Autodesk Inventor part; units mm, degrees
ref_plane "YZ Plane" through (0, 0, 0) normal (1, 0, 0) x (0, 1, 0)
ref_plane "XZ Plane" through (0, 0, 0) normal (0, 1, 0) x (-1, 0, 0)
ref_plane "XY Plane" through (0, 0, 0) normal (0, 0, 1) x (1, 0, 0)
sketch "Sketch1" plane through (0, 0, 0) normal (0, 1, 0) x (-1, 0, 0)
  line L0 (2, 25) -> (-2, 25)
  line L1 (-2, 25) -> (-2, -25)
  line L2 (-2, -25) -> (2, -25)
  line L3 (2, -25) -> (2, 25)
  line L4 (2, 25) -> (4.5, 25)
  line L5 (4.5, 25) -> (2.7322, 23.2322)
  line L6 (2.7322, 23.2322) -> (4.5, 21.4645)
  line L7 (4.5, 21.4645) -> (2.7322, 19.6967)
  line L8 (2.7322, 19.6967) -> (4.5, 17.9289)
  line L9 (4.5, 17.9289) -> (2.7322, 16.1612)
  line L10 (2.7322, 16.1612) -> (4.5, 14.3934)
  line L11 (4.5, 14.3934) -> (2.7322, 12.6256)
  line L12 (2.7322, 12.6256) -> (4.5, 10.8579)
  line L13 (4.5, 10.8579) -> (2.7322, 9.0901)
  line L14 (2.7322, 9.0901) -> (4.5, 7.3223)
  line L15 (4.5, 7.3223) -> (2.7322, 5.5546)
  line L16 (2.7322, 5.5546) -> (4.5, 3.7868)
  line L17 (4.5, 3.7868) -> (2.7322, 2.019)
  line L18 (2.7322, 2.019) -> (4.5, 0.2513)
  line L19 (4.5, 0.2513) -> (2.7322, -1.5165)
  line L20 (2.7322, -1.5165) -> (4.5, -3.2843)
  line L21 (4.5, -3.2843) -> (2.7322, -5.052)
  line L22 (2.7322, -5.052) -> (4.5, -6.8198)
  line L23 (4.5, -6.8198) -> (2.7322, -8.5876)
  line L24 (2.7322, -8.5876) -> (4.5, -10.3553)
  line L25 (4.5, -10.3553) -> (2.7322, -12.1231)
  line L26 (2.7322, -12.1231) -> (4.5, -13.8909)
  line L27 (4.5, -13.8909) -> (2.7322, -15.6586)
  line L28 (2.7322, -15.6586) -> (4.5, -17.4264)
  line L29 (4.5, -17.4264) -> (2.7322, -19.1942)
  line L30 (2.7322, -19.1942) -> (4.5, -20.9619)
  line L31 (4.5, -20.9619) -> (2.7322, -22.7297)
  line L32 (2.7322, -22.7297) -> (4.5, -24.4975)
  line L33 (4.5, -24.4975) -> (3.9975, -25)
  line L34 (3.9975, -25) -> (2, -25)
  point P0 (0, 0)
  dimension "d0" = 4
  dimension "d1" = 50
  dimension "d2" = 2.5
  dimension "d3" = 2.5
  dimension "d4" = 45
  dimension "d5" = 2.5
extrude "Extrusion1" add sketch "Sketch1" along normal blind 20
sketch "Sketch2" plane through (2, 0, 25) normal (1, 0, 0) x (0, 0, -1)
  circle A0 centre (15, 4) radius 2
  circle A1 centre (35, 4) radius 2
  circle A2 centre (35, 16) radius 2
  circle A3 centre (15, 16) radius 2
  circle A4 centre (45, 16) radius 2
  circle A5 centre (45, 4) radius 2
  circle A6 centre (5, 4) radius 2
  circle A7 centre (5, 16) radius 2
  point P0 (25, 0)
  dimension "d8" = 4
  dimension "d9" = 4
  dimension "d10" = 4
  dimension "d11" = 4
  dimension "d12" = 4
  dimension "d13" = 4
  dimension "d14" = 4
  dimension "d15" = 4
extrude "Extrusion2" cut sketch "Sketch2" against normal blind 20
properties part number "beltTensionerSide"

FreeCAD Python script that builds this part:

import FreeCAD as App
import Part
import Sketcher


def add_polygon(sketch, points):
    """Adds a closed chain of lines whose ends are joined by coincident constraints."""
    first, n = sketch.GeometryCount, len(points)
    for a, b in zip(points, points[1:] + points[:1]):
        sketch.addGeometry(Part.LineSegment(App.Vector(*a, 0), App.Vector(*b, 0)), False)
    for i in range(n):
        sketch.addConstraint(Sketcher.Constraint("Coincident", first + i, 2, first + (i + 1) % n, 1))

doc = App.newDocument("Part")
body = doc.addObject("PartDesign::Body", "Body")

sketch1 = body.newObject("Sketcher::SketchObject", "Sketch")
sketch1.AttachmentSupport = (doc.getObject("XZ_Plane"), [""])
sketch1.MapMode = "FlatFace"
add_polygon(sketch1, [(2, -25), (-4, -25), (-4.5, -24.5), (-2.7, -22.7), (-4.5, -21), (-2.7, -19.2), (-4.5, -17.4), (-2.7, -15.7), (-4.5, -13.9), (-2.7, -12.1), (-4.5, -10.4), (-2.7, -8.6), (-4.5, -6.8), (-2.7, -5.1), (-4.5, -3.3), (-2.7, -1.5), (-4.5, 0.3), (-2.7, 2), (-4.5, 3.8), (-2.7, 5.6), (-4.5, 7.3), (-2.7, 9.1), (-4.5, 10.9), (-2.7, 12.6), (-4.5, 14.4), (-2.7, 16.2), (-4.5, 17.9), (-2.7, 19.7), (-4.5, 21.5), (-2.7, 23.2), (-4.5, 25), (2, 25)])
sketch1.addConstraint(Sketcher.Constraint("Horizontal", 0))
sketch1.addConstraint(Sketcher.Constraint("Horizontal", 30))
sketch1.addConstraint(Sketcher.Constraint("Vertical", 31))
sketch1.addConstraint(Sketcher.Constraint("Perpendicular", 1, 2))
sketch1.addConstraint(Sketcher.Constraint("Perpendicular", 2, 3))
sketch1.addConstraint(Sketcher.Constraint("Perpendicular", 3, 4))
sketch1.addConstraint(Sketcher.Constraint("Perpendicular", 4, 5))
sketch1.addConstraint(Sketcher.Constraint("Perpendicular", 5, 6))
sketch1.addConstraint(Sketcher.Constraint("Perpendicular", 6, 7))
sketch1.addConstraint(Sketcher.Constraint("Perpendicular", 7, 8))
sketch1.addConstraint(Sketcher.Constraint("Perpendicular", 8, 9))
sketch1.addConstraint(Sketcher.Constraint("Perpendicular", 9, 10))
sketch1.addConstraint(Sketcher.Constraint("Perpendicular", 10, 11))
sketch1.addConstraint(Sketcher.Constraint("Perpendicular", 11, 12))
sketch1.addConstraint(Sketcher.Constraint("Perpendicular", 12, 13))
sketch1.addConstraint(Sketcher.Constraint("Perpendicular", 13, 14))
sketch1.addConstraint(Sketcher.Constraint("Perpendicular", 14, 15))
sketch1.addConstraint(Sketcher.Constraint("Perpendicular", 15, 16))
sketch1.addConstraint(Sketcher.Constraint("Perpendicular", 16, 17))
sketch1.addConstraint(Sketcher.Constraint("Perpendicular", 17, 18))
sketch1.addConstraint(Sketcher.Constraint("Perpendicular", 18, 19))
sketch1.addConstraint(Sketcher.Constraint("Perpendicular", 19, 20))
sketch1.addConstraint(Sketcher.Constraint("Perpendicular", 20, 21))
sketch1.addConstraint(Sketcher.Constraint("Perpendicular", 21, 22))
sketch1.addConstraint(Sketcher.Constraint("Perpendicular", 22, 23))
sketch1.addConstraint(Sketcher.Constraint("Perpendicular", 23, 24))
sketch1.addConstraint(Sketcher.Constraint("Perpendicular", 24, 25))
sketch1.addConstraint(Sketcher.Constraint("Perpendicular", 25, 26))
sketch1.addConstraint(Sketcher.Constraint("Perpendicular", 26, 27))
sketch1.addConstraint(Sketcher.Constraint("Perpendicular", 27, 28))
sketch1.addConstraint(Sketcher.Constraint("Perpendicular", 28, 29))
sketch1.addConstraint(Sketcher.Constraint("Vertical", 1, 2, 3, 2))
sketch1.addConstraint(Sketcher.Constraint("Vertical", 2, 2, 4, 2))
sketch1.addConstraint(Sketcher.Constraint("Vertical", 3, 2, 5, 2))
sketch1.addConstraint(Sketcher.Constraint("Vertical", 4, 2, 6, 2))
sketch1.addConstraint(Sketcher.Constraint("Vertical", 5, 2, 7, 2))
sketch1.addConstraint(Sketcher.Constraint("Vertical", 6, 2, 8, 2))
sketch1.addConstraint(Sketcher.Constraint("Vertical", 7, 2, 9, 2))
sketch1.addConstraint(Sketcher.Constraint("Vertical", 8, 2, 10, 2))
sketch1.addConstraint(Sketcher.Constraint("Vertical", 9, 2, 11, 2))
sketch1.addConstraint(Sketcher.Constraint("Vertical", 10, 2, 12, 2))
sketch1.addConstraint(Sketcher.Constraint("Vertical", 11, 2, 13, 2))
sketch1.addConstraint(Sketcher.Constraint("Vertical", 12, 2, 14, 2))
sketch1.addConstraint(Sketcher.Constraint("Vertical", 13, 2, 15, 2))
sketch1.addConstraint(Sketcher.Constraint("Vertical", 14, 2, 16, 2))
sketch1.addConstraint(Sketcher.Constraint("Vertical", 15, 2, 17, 2))
sketch1.addConstraint(Sketcher.Constraint("Vertical", 16, 2, 18, 2))
sketch1.addConstraint(Sketcher.Constraint("Vertical", 17, 2, 19, 2))
sketch1.addConstraint(Sketcher.Constraint("Vertical", 18, 2, 20, 2))
sketch1.addConstraint(Sketcher.Constraint("Vertical", 19, 2, 21, 2))
sketch1.addConstraint(Sketcher.Constraint("Vertical", 20, 2, 22, 2))
sketch1.addConstraint(Sketcher.Constraint("Vertical", 21, 2, 23, 2))
sketch1.addConstraint(Sketcher.Constraint("Vertical", 22, 2, 24, 2))
sketch1.addConstraint(Sketcher.Constraint("Vertical", 23, 2, 25, 2))
sketch1.addConstraint(Sketcher.Constraint("Vertical", 24, 2, 26, 2))
sketch1.addConstraint(Sketcher.Constraint("Vertical", 25, 2, 27, 2))
sketch1.addConstraint(Sketcher.Constraint("Vertical", 26, 2, 28, 2))
sketch1.addConstraint(Sketcher.Constraint("Vertical", 27, 2, 29, 2))
sketch1.addConstraint(Sketcher.Constraint("Equal", 2, 3))
sketch1.addConstraint(Sketcher.Constraint("DistanceY", 31, 2, 31, 1, 50.0))
sketch1.addConstraint(Sketcher.Constraint("Distance", 2, 2.5))
sketch1.addConstraint(Sketcher.Constraint("DistanceX", 30, 1, 30, 2, 6.5))
sketch1.addConstraint(Sketcher.Constraint("DistanceY", 0, 2, -1, 1, 25.0))
sketch1.addConstraint(Sketcher.Constraint("DistanceX", -1, 1, 30, 2, 2.0))
pad1 = body.newObject("PartDesign::Pad", "Pad")
pad1.Profile = sketch1
pad1.Length = 20
pad1.Reversed = True

sketch2 = body.newObject("Sketcher::SketchObject", "Sketch001")
sketch2.AttachmentSupport = (doc.getObject("YZ_Plane"), [""])
sketch2.MapMode = "FlatFace"
sketch2.AttachmentOffset = App.Placement(App.Vector(0, 0, 2), App.Rotation())
sketch2.addGeometry(Part.Circle(App.Vector(4, 10, 0), App.Vector(0, 0, 1), 2), False)
sketch2.addGeometry(Part.Circle(App.Vector(4, -10, 0), App.Vector(0, 0, 1), 2), False)
sketch2.addGeometry(Part.Circle(App.Vector(16, -10, 0), App.Vector(0, 0, 1), 2), False)
sketch2.addGeometry(Part.Circle(App.Vector(16, 10, 0), App.Vector(0, 0, 1), 2), False)
sketch2.addGeometry(Part.Circle(App.Vector(16, -20, 0), App.Vector(0, 0, 1), 2), False)
sketch2.addGeometry(Part.Circle(App.Vector(4, -20, 0), App.Vector(0, 0, 1), 2), False)
sketch2.addGeometry(Part.Circle(App.Vector(4, 20, 0), App.Vector(0, 0, 1), 2), False)
sketch2.addGeometry(Part.Circle(App.Vector(16, 20, 0), App.Vector(0, 0, 1), 2), False)
sketch2.addConstraint(Sketcher.Constraint("Equal", 0, 1))
sketch2.addConstraint(Sketcher.Constraint("Equal", 1, 2))
sketch2.addConstraint(Sketcher.Constraint("Equal", 2, 3))
sketch2.addConstraint(Sketcher.Constraint("Equal", 3, 4))
sketch2.addConstraint(Sketcher.Constraint("Equal", 4, 5))
sketch2.addConstraint(Sketcher.Constraint("Equal", 5, 6))
sketch2.addConstraint(Sketcher.Constraint("Equal", 6, 7))
sketch2.addConstraint(Sketcher.Constraint("Symmetric", 0, 3, 1, 3, -1))
sketch2.addConstraint(Sketcher.Constraint("Symmetric", 2, 3, 3, 3, -1))
sketch2.addConstraint(Sketcher.Constraint("Symmetric", 5, 3, 6, 3, -1))
sketch2.addConstraint(Sketcher.Constraint("Symmetric", 4, 3, 7, 3, -1))
sketch2.addConstraint(Sketcher.Constraint("Horizontal", 1, 3, 2, 3))
sketch2.addConstraint(Sketcher.Constraint("Horizontal", 4, 3, 5, 3))
sketch2.addConstraint(Sketcher.Constraint("Vertical", 3, 3, 4, 3))
sketch2.addConstraint(Sketcher.Constraint("Vertical", 1, 3, 5, 3))
sketch2.addConstraint(Sketcher.Constraint("Diameter", 0, 4.0))
sketch2.addConstraint(Sketcher.Constraint("DistanceX", -1, 1, 0, 3, 4.0))
sketch2.addConstraint(Sketcher.Constraint("DistanceY", -1, 1, 0, 3, 10.0))
sketch2.addConstraint(Sketcher.Constraint("DistanceX", -1, 1, 2, 3, 16.0))
sketch2.addConstraint(Sketcher.Constraint("DistanceY", 4, 3, -1, 1, 20.0))
pocket1 = body.newObject("PartDesign::Pocket", "Pocket")
pocket1.Profile = sketch2
pocket1.Length = 20

doc.recompute()
